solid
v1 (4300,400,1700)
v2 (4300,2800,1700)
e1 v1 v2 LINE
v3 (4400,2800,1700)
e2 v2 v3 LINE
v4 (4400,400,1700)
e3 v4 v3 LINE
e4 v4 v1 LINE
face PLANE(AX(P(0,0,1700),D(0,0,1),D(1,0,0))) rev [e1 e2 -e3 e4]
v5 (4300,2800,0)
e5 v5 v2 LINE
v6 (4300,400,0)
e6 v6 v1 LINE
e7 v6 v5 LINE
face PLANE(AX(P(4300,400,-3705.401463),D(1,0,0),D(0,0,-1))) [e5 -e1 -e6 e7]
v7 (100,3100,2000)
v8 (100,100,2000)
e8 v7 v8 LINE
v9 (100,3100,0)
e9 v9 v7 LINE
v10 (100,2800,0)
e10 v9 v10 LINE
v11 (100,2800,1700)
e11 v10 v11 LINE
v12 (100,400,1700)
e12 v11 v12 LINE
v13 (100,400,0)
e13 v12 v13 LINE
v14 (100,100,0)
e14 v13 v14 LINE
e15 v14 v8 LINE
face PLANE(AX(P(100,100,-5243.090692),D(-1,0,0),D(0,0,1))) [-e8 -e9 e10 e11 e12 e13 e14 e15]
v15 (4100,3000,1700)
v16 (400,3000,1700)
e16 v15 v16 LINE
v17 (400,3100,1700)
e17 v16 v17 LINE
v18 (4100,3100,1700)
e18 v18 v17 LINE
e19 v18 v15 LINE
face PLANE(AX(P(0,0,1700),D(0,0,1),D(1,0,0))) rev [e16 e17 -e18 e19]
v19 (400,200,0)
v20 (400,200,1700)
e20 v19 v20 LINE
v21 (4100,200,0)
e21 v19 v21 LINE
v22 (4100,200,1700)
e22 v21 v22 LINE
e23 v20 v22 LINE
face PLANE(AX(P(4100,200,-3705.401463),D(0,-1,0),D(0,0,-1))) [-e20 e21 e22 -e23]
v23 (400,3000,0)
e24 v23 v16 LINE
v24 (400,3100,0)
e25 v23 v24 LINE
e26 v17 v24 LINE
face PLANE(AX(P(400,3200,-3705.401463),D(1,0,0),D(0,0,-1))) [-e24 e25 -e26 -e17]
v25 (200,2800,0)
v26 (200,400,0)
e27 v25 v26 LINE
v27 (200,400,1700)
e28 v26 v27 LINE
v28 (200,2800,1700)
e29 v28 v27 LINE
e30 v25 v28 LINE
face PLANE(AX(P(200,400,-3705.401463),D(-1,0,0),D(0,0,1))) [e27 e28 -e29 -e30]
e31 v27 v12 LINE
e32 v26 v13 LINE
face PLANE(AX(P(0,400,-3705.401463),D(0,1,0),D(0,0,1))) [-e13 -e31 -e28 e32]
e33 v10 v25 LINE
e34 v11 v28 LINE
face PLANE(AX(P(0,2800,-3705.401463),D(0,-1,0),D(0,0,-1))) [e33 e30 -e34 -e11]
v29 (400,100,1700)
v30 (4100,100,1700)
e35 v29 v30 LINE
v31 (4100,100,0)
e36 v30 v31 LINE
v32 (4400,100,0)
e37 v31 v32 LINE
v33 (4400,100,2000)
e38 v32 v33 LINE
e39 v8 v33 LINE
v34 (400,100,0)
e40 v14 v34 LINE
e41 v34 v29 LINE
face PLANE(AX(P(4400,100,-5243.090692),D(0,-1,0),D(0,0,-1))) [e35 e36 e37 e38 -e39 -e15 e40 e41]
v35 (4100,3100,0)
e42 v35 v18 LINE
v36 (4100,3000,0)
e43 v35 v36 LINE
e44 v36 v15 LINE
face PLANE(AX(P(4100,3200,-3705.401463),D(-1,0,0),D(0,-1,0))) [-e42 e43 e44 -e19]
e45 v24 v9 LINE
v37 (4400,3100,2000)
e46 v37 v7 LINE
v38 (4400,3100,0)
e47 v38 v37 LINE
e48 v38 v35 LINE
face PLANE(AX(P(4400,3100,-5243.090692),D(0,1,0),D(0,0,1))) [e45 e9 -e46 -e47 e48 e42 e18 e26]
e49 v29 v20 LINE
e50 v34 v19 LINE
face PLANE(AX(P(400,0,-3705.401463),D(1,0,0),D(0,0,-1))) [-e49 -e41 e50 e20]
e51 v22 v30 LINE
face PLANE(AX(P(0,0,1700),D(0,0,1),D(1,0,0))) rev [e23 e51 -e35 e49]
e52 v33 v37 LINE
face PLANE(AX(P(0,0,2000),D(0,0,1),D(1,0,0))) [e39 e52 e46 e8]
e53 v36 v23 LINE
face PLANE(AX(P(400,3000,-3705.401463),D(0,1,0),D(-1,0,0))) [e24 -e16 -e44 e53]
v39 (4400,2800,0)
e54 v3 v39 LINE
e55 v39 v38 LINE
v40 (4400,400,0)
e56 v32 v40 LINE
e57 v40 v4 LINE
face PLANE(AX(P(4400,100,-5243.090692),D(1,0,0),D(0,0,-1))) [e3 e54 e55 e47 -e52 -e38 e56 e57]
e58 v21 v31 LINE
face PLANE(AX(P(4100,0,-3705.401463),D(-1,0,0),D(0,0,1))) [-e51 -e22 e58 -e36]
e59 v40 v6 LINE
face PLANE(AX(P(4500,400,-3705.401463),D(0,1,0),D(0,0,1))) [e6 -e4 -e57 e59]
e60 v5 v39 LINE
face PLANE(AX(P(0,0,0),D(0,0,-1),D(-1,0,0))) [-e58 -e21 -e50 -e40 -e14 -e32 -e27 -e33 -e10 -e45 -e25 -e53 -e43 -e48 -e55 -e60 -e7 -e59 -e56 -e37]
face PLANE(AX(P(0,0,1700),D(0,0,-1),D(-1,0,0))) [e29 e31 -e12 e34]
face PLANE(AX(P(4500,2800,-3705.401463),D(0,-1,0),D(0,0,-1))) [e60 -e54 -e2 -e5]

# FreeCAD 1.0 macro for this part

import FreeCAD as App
import Part
import Sketcher
from FreeCAD import Vector
Q = App.Units.Quantity

doc = App.newDocument("Part")
params = doc.addObject("Spreadsheet::Sheet", "Params")
for row, (alias, value) in enumerate([
    ("sketch1_width", "4500 mm"),
    ("sketch1_width2", "4300 mm"),
    ("sketch1_height", "3200 mm"),
    ("sketch1_height2", "3000 mm"),
    ("pad1_length", "2000 mm"),
    ("sketch2_width", "3700 mm"),
    ("sketch2_height", "1700 mm"),
    ("sketch3_width", "2400 mm"),
    ("sketch3_height", "1700 mm"),
    ("sketch4_width", "3700 mm"),
    ("sketch4_height", "200 mm"),
    ("pad2_length", "1700 mm"),
    ("sketch5_width", "200 mm"),
    ("sketch5_height", "2400 mm"),
    ("pad3_length", "1700 mm"),
    ("sketch6_width", "3700 mm"),
    ("sketch6_height", "200 mm"),
    ("pad4_length", "1700 mm"),
    ("sketch7_width", "200 mm"),
    ("sketch7_height", "2400 mm"),
    ("pad5_length", "1700 mm"),
    ("sketch8_width", "4300 mm"),
    ("sketch8_height", "3000 mm"),
    ("pad6_length", "2000 mm"),
], start=1):
    params.set(f"A{row}", alias)
    params.set(f"B{row}", "=" + value)
    params.setAlias(f"B{row}", alias)

body = doc.addObject("PartDesign::Body", "Body")

# Sketch on XY plane
sketch1 = doc.addObject("Sketcher::SketchObject", "Sketch")
body.addObject(sketch1)
sketch1.AttachmentSupport = (doc.XY_Plane, [""])
sketch1.MapMode = "FlatFace"
sketch1.addGeometry([
    Part.LineSegment(Vector(0, 3200, 0), Vector(0, 0, 0)),  # 0
    Part.LineSegment(Vector(0, 0, 0), Vector(4500, 0, 0)),  # 1
    Part.LineSegment(Vector(4500, 0, 0), Vector(4500, 3200, 0)),  # 2
    Part.LineSegment(Vector(4500, 3200, 0), Vector(0, 3200, 0)),  # 3
    Part.LineSegment(Vector(4400, 100, 0), Vector(100, 100, 0)),  # 4
    Part.LineSegment(Vector(100, 100, 0), Vector(100, 3100, 0)),  # 5
    Part.LineSegment(Vector(100, 3100, 0), Vector(4400, 3100, 0)),  # 6
    Part.LineSegment(Vector(4400, 3100, 0), Vector(4400, 100, 0)),  # 7
], False)
sketch1.addConstraint([
    Sketcher.Constraint("Coincident", 0, 2, 1, 1),
    Sketcher.Constraint("Coincident", 1, 2, 2, 1),
    Sketcher.Constraint("Coincident", 2, 2, 3, 1),
    Sketcher.Constraint("Coincident", 3, 2, 0, 1),
    Sketcher.Constraint("Coincident", 4, 2, 5, 1),
    Sketcher.Constraint("Coincident", 5, 2, 6, 1),
    Sketcher.Constraint("Coincident", 6, 2, 7, 1),
    Sketcher.Constraint("Coincident", 7, 2, 4, 1),
    Sketcher.Constraint("Vertical", 0),
    Sketcher.Constraint("Horizontal", 1),
    Sketcher.Constraint("Vertical", 2),
    Sketcher.Constraint("Horizontal", 3),
    Sketcher.Constraint("Horizontal", 4),
    Sketcher.Constraint("Vertical", 5),
    Sketcher.Constraint("Horizontal", 6),
    Sketcher.Constraint("Vertical", 7),
    Sketcher.Constraint("Coincident", 0, 2, -1, 1),
    Sketcher.Constraint("DistanceX", 1, 1, 1, 2, Q("4500 mm")),
    Sketcher.Constraint("DistanceX", 4, 2, 4, 1, Q("4300 mm")),
    Sketcher.Constraint("DistanceY", 0, 2, 0, 1, Q("3200 mm")),
    Sketcher.Constraint("DistanceY", 5, 1, 5, 2, Q("3000 mm")),
    Sketcher.Constraint("DistanceX", -1, 1, 4, 2, Q("100 mm")),
    Sketcher.Constraint("DistanceY", -1, 1, 4, 2, Q("100 mm")),
])
sketch1.setExpression("Constraints[17]", "Params.sketch1_width")
sketch1.setExpression("Constraints[18]", "Params.sketch1_width2")
sketch1.setExpression("Constraints[19]", "Params.sketch1_height")
sketch1.setExpression("Constraints[20]", "Params.sketch1_height2")
pad1 = doc.addObject("PartDesign::Pad", "Pad")
body.addObject(pad1)
pad1.Profile = sketch1
pad1.setExpression("Length", "Params.pad1_length")

# Sketch on XZ plane
sketch2 = doc.addObject("Sketcher::SketchObject", "Sketch001")
body.addObject(sketch2)
sketch2.AttachmentSupport = (doc.XZ_Plane, [""])
sketch2.MapMode = "FlatFace"
sketch2.AttachmentOffset = App.Placement(Vector(0, 0, -3100), App.Rotation())
sketch2.addGeometry([
    Part.LineSegment(Vector(400, 1700, 0), Vector(400, 0, 0)),
    Part.LineSegment(Vector(400, 0, 0), Vector(4100, 0, 0)),
    Part.LineSegment(Vector(4100, 0, 0), Vector(4100, 1700, 0)),
    Part.LineSegment(Vector(4100, 1700, 0), Vector(400, 1700, 0)),
], False)
sketch2.addConstraint([
    Sketcher.Constraint("Coincident", 0, 2, 1, 1),
    Sketcher.Constraint("Coincident", 1, 2, 2, 1),
    Sketcher.Constraint("Coincident", 2, 2, 3, 1),
    Sketcher.Constraint("Coincident", 3, 2, 0, 1),
    Sketcher.Constraint("Vertical", 0),
    Sketcher.Constraint("Horizontal", 1),
    Sketcher.Constraint("Vertical", 2),
    Sketcher.Constraint("Horizontal", 3),
    Sketcher.Constraint("PointOnObject", 0, 2, -1),
    Sketcher.Constraint("DistanceX", 1, 1, 1, 2, Q("3700 mm")),
    Sketcher.Constraint("DistanceY", 0, 2, 0, 1, Q("1700 mm")),
    Sketcher.Constraint("DistanceX", -1, 1, 0, 2, Q("400 mm")),
])
sketch2.setExpression("Constraints[9]", "Params.sketch2_width")
sketch2.setExpression("Constraints[10]", "Params.sketch2_height")
pocket1 = doc.addObject("PartDesign::Pocket", "Pocket")
body.addObject(pocket1)
pocket1.Profile = sketch2
pocket1.Type = "ThroughAll"
pocket1.Midplane = True

# Sketch on YZ plane
sketch3 = doc.addObject("Sketcher::SketchObject", "Sketch002")
body.addObject(sketch3)
sketch3.AttachmentSupport = (doc.YZ_Plane, [""])
sketch3.MapMode = "FlatFace"
sketch3.addGeometry([
    Part.LineSegment(Vector(2800, 0, 0), Vector(400, 0, 0)),
    Part.LineSegment(Vector(400, 0, 0), Vector(400, 1700, 0)),
    Part.LineSegment(Vector(400, 1700, 0), Vector(2800, 1700, 0)),
    Part.LineSegment(Vector(2800, 1700, 0), Vector(2800, 0, 0)),
], False)
sketch3.addConstraint([
    Sketcher.Constraint("Coincident", 0, 2, 1, 1),
    Sketcher.Constraint("Coincident", 1, 2, 2, 1),
    Sketcher.Constraint("Coincident", 2, 2, 3, 1),
    Sketcher.Constraint("Coincident", 3, 2, 0, 1),
    Sketcher.Constraint("Horizontal", 0),
    Sketcher.Constraint("Vertical", 1),
    Sketcher.Constraint("Horizontal", 2),
    Sketcher.Constraint("Vertical", 3),
    Sketcher.Constraint("PointOnObject", 0, 2, -1),
    Sketcher.Constraint("DistanceX", 0, 2, 0, 1, Q("2400 mm")),
    Sketcher.Constraint("DistanceY", 1, 1, 1, 2, Q("1700 mm")),
    Sketcher.Constraint("DistanceX", -1, 1, 0, 2, Q("400 mm")),
])
sketch3.setExpression("Constraints[9]", "Params.sketch3_width")
sketch3.setExpression("Constraints[10]", "Params.sketch3_height")
pocket2 = doc.addObject("PartDesign::Pocket", "Pocket001")
body.addObject(pocket2)
pocket2.Profile = sketch3
pocket2.Type = "ThroughAll"
pocket2.Midplane = True
body2 = doc.addObject("PartDesign::Body", "Body001")

# Sketch on XY plane
sketch4 = doc.addObject("Sketcher::SketchObject", "Sketch003")
body2.addObject(sketch4)
sketch4.AttachmentSupport = (doc.getObject("XY_Plane001"), [""])
sketch4.MapMode = "FlatFace"
sketch4.AttachmentOffset = App.Placement(Vector(0, 0, 1700), App.Rotation())
sketch4.addGeometry([
    Part.LineSegment(Vector(4100, 200, 0), Vector(4100, 0, 0)),
    Part.LineSegment(Vector(4100, 0, 0), Vector(400, 0, 0)),
    Part.LineSegment(Vector(400, 0, 0), Vector(400, 200, 0)),
    Part.LineSegment(Vector(400, 200, 0), Vector(4100, 200, 0)),
], False)
sketch4.addConstraint([
    Sketcher.Constraint("Coincident", 0, 2, 1, 1),
    Sketcher.Constraint("Coincident", 1, 2, 2, 1),
    Sketcher.Constraint("Coincident", 2, 2, 3, 1),
    Sketcher.Constraint("Coincident", 3, 2, 0, 1),
    Sketcher.Constraint("Vertical", 0),
    Sketcher.Constraint("Horizontal", 1),
    Sketcher.Constraint("Vertical", 2),
    Sketcher.Constraint("Horizontal", 3),
    Sketcher.Constraint("PointOnObject", 0, 2, -1),
    Sketcher.Constraint("DistanceX", 1, 2, 1, 1, Q("3700 mm")),
    Sketcher.Constraint("DistanceY", 0, 2, 0, 1, Q("200 mm")),
    Sketcher.Constraint("DistanceX", -1, 1, 0, 2, Q("4100 mm")),
])
sketch4.setExpression("Constraints[9]", "Params.sketch4_width")
sketch4.setExpression("Constraints[10]", "Params.sketch4_height")
pad2 = doc.addObject("PartDesign::Pad", "Pad001")
body2.addObject(pad2)
pad2.Profile = sketch4
pad2.setExpression("Length", "Params.pad2_length")
pad2.Reversed = True
body3 = doc.addObject("PartDesign::Body", "Body002")

# Sketch on XY plane
sketch5 = doc.addObject("Sketcher::SketchObject", "Sketch004")
body3.addObject(sketch5)
sketch5.AttachmentSupport = (doc.getObject("XY_Plane002"), [""])
sketch5.MapMode = "FlatFace"
sketch5.AttachmentOffset = App.Placement(Vector(0, 0, 1700), App.Rotation())
sketch5.addGeometry([
    Part.LineSegment(Vector(200, 2800, 0), Vector(200, 400, 0)),
    Part.LineSegment(Vector(200, 400, 0), Vector(0, 400, 0)),
    Part.LineSegment(Vector(0, 400, 0), Vector(0, 2800, 0)),
    Part.LineSegment(Vector(0, 2800, 0), Vector(200, 2800, 0)),
], False)
sketch5.addConstraint([
    Sketcher.Constraint("Coincident", 0, 2, 1, 1),
    Sketcher.Constraint("Coincident", 1, 2, 2, 1),
    Sketcher.Constraint("Coincident", 2, 2, 3, 1),
    Sketcher.Constraint("Coincident", 3, 2, 0, 1),
    Sketcher.Constraint("Vertical", 0),
    Sketcher.Constraint("Horizontal", 1),
    Sketcher.Constraint("Vertical", 2),
    Sketcher.Constraint("Horizontal", 3),
    Sketcher.Constraint("PointOnObject", 1, 2, -2),
    Sketcher.Constraint("DistanceX", 1, 2, 1, 1, Q("200 mm")),
    Sketcher.Constraint("DistanceY", 0, 2, 0, 1, Q("2400 mm")),
    Sketcher.Constraint("DistanceY", -1, 1, 0, 2, Q("400 mm")),
])
sketch5.setExpression("Constraints[9]", "Params.sketch5_width")
sketch5.setExpression("Constraints[10]", "Params.sketch5_height")
pad3 = doc.addObject("PartDesign::Pad", "Pad002")
body3.addObject(pad3)
pad3.Profile = sketch5
pad3.setExpression("Length", "Params.pad3_length")
pad3.Reversed = True
body4 = doc.addObject("PartDesign::Body", "Body003")

# Sketch on XY plane
sketch6 = doc.addObject("Sketcher::SketchObject", "Sketch005")
body4.addObject(sketch6)
sketch6.AttachmentSupport = (doc.getObject("XY_Plane003"), [""])
sketch6.MapMode = "FlatFace"
sketch6.AttachmentOffset = App.Placement(Vector(0, 0, 1700), App.Rotation())
sketch6.addGeometry([
    Part.LineSegment(Vector(4100, 3200, 0), Vector(4100, 3000, 0)),
    Part.LineSegment(Vector(4100, 3000, 0), Vector(400, 3000, 0)),
    Part.LineSegment(Vector(400, 3000, 0), Vector(400, 3200, 0)),
    Part.LineSegment(Vector(400, 3200, 0), Vector(4100, 3200, 0)),
], False)
sketch6.addConstraint([
    Sketcher.Constraint("Coincident", 0, 2, 1, 1),
    Sketcher.Constraint("Coincident", 1, 2, 2, 1),
    Sketcher.Constraint("Coincident", 2, 2, 3, 1),
    Sketcher.Constraint("Coincident", 3, 2, 0, 1),
    Sketcher.Constraint("Vertical", 0),
    Sketcher.Constraint("Horizontal", 1),
    Sketcher.Constraint("Vertical", 2),
    Sketcher.Constraint("Horizontal", 3),
    Sketcher.Constraint("DistanceX", 1, 2, 1, 1, Q("3700 mm")),
    Sketcher.Constraint("DistanceY", 0, 2, 0, 1, Q("200 mm")),
    Sketcher.Constraint("DistanceX", -1, 1, 0, 2, Q("4100 mm")),
    Sketcher.Constraint("DistanceY", -1, 1, 0, 2, Q("3000 mm")),
])
sketch6.setExpression("Constraints[8]", "Params.sketch6_width")
sketch6.setExpression("Constraints[9]", "Params.sketch6_height")
pad4 = doc.addObject("PartDesign::Pad", "Pad003")
body4.addObject(pad4)
pad4.Profile = sketch6
pad4.setExpression("Length", "Params.pad4_length")
pad4.Reversed = True
body5 = doc.addObject("PartDesign::Body", "Body004")

# Sketch on XY plane
sketch7 = doc.addObject("Sketcher::SketchObject", "Sketch006")
body5.addObject(sketch7)
sketch7.AttachmentSupport = (doc.getObject("XY_Plane004"), [""])
sketch7.MapMode = "FlatFace"
sketch7.AttachmentOffset = App.Placement(Vector(0, 0, 1700), App.Rotation())
sketch7.addGeometry([
    Part.LineSegment(Vector(4500, 2800, 0), Vector(4500, 400, 0)),
    Part.LineSegment(Vector(4500, 400, 0), Vector(4300, 400, 0)),
    Part.LineSegment(Vector(4300, 400, 0), Vector(4300, 2800, 0)),
    Part.LineSegment(Vector(4300, 2800, 0), Vector(4500, 2800, 0)),
], False)
sketch7.addConstraint([
    Sketcher.Constraint("Coincident", 0, 2, 1, 1),
    Sketcher.Constraint("Coincident", 1, 2, 2, 1),
    Sketcher.Constraint("Coincident", 2, 2, 3, 1),
    Sketcher.Constraint("Coincident", 3, 2, 0, 1),
    Sketcher.Constraint("Vertical", 0),
    Sketcher.Constraint("Horizontal", 1),
    Sketcher.Constraint("Vertical", 2),
    Sketcher.Constraint("Horizontal", 3),
    Sketcher.Constraint("DistanceX", 1, 2, 1, 1, Q("200 mm")),
    Sketcher.Constraint("DistanceY", 0, 2, 0, 1, Q("2400 mm")),
    Sketcher.Constraint("DistanceX", -1, 1, 0, 2, Q("4500 mm")),
    Sketcher.Constraint("DistanceY", -1, 1, 0, 2, Q("400 mm")),
])
sketch7.setExpression("Constraints[8]", "Params.sketch7_width")
sketch7.setExpression("Constraints[9]", "Params.sketch7_height")
pad5 = doc.addObject("PartDesign::Pad", "Pad004")
body5.addObject(pad5)
pad5.Profile = sketch7
pad5.setExpression("Length", "Params.pad5_length")
pad5.Reversed = True
body6 = doc.addObject("PartDesign::Body", "Body005")

# Sketch on XY plane
sketch8 = doc.addObject("Sketcher::SketchObject", "Sketch007")
body6.addObject(sketch8)
sketch8.AttachmentSupport = (doc.getObject("XY_Plane005"), [""])
sketch8.MapMode = "FlatFace"
sketch8.AttachmentOffset = App.Placement(Vector(0, 0, 2000), App.Rotation())
sketch8.addGeometry([
    Part.LineSegment(Vector(100, 3100, 0), Vector(100, 100, 0)),
    Part.LineSegment(Vector(100, 100, 0), Vector(4400, 100, 0)),
    Part.LineSegment(Vector(4400, 100, 0), Vector(4400, 3100, 0)),
    Part.LineSegment(Vector(4400, 3100, 0), Vector(100, 3100, 0)),
], False)
sketch8.addConstraint([
    Sketcher.Constraint("Coincident", 0, 2, 1, 1),
    Sketcher.Constraint("Coincident", 1, 2, 2, 1),
    Sketcher.Constraint("Coincident", 2, 2, 3, 1),
    Sketcher.Constraint("Coincident", 3, 2, 0, 1),
    Sketcher.Constraint("Vertical", 0),
    Sketcher.Constraint("Horizontal", 1),
    Sketcher.Constraint("Vertical", 2),
    Sketcher.Constraint("Horizontal", 3),
    Sketcher.Constraint("DistanceX", 1, 1, 1, 2, Q("4300 mm")),
    Sketcher.Constraint("DistanceY", 0, 2, 0, 1, Q("3000 mm")),
    Sketcher.Constraint("DistanceX", -1, 1, 0, 2, Q("100 mm")),
    Sketcher.Constraint("DistanceY", -1, 1, 0, 2, Q("100 mm")),
])
sketch8.setExpression("Constraints[8]", "Params.sketch8_width")
sketch8.setExpression("Constraints[9]", "Params.sketch8_height")
pad6 = doc.addObject("PartDesign::Pad", "Pad005")
body6.addObject(pad6)
pad6.Profile = sketch8
pad6.setExpression("Length", "Params.pad6_length")
pad6.Reversed = True
doc.recompute()

boolean = doc.addObject("PartDesign::Boolean", "Boolean")
body6.addObject(boolean)
boolean.Type = "Cut"
boolean.addObjects([body])
doc.recompute()

boolean2 = doc.addObject("PartDesign::Boolean", "Boolean001")
body6.addObject(boolean2)
boolean2.Type = "Cut"
boolean2.addObjects([body5])
doc.recompute()

boolean3 = doc.addObject("PartDesign::Boolean", "Boolean002")
body6.addObject(boolean3)
boolean3.Type = "Cut"
boolean3.addObjects([body4])
doc.recompute()

boolean4 = doc.addObject("PartDesign::Boolean", "Boolean003")
body6.addObject(boolean4)
boolean4.Type = "Cut"
boolean4.addObjects([body3])
doc.recompute()

boolean5 = doc.addObject("PartDesign::Boolean", "Boolean004")
body6.addObject(boolean5)
boolean5.Type = "Cut"
boolean5.addObjects([body2])

doc.recompute()
